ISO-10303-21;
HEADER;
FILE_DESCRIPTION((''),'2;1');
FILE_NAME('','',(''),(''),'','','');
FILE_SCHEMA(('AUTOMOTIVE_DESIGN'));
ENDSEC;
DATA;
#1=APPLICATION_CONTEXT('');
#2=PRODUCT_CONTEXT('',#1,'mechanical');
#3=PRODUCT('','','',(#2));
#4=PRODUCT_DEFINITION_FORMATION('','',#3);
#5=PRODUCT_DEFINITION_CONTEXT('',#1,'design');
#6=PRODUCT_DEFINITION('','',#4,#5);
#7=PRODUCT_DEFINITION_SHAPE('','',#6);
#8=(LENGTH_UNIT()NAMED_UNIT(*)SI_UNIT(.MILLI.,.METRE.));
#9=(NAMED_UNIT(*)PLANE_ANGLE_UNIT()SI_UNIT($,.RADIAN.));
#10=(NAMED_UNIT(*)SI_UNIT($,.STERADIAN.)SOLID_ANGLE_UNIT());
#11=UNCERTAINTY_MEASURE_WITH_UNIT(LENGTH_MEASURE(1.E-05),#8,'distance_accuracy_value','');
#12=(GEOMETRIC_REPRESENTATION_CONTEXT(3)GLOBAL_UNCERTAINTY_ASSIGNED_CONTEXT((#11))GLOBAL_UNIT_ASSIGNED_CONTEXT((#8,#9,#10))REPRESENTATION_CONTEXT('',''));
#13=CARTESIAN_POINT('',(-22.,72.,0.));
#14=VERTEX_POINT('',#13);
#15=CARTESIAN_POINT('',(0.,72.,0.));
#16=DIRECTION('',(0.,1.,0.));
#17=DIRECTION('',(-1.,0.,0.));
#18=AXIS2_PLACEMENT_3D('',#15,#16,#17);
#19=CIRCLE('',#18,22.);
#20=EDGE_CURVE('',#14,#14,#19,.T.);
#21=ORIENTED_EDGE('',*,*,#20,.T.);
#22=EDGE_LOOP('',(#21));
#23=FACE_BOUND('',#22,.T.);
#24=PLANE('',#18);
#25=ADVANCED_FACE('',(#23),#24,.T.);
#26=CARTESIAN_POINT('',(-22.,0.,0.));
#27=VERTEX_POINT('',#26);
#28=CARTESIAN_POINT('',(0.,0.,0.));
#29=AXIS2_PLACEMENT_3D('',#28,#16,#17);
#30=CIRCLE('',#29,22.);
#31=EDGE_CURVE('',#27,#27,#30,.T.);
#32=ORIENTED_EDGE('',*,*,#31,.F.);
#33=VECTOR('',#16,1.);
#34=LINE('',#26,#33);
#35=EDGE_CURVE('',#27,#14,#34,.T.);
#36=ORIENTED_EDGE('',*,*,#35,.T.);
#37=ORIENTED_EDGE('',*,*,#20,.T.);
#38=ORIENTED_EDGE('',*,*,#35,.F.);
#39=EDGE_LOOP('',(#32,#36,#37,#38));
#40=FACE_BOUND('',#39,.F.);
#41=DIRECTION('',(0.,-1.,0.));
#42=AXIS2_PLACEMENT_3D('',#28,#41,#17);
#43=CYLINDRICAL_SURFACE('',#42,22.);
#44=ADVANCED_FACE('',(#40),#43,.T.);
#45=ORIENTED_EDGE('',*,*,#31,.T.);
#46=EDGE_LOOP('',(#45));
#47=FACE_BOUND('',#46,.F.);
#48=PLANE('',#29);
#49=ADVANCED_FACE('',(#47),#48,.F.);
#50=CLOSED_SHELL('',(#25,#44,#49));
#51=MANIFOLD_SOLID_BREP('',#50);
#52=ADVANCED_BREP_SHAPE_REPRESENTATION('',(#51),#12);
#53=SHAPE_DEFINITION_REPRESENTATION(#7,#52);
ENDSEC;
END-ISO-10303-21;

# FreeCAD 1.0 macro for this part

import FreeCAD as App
import Part
import Sketcher
from FreeCAD import Vector
Q = App.Units.Quantity

doc = App.newDocument("Part")
body = doc.addObject("PartDesign::Body", "Body")

# Sketch on XZ plane
sketch1 = body.newObject("Sketcher::SketchObject", "Sketch")
sketch1.AttachmentSupport = (doc.getObject("XZ_Plane"), [""])
sketch1.MapMode = "FlatFace"
sketch1.addGeometry(Part.Circle(Vector(0, 0, 0), Vector(0, 0, 1), 22), False)
sketch1.addConstraint([
    Sketcher.Constraint("Coincident", 0, 3, -1, 1),
    Sketcher.Constraint("Diameter", 0, Q("44 mm")),
])
pad1 = body.newObject("PartDesign::Pad", "Pad")
pad1.Profile = sketch1
pad1.Length = 72
pad1.Reversed = True

doc.recompute()
